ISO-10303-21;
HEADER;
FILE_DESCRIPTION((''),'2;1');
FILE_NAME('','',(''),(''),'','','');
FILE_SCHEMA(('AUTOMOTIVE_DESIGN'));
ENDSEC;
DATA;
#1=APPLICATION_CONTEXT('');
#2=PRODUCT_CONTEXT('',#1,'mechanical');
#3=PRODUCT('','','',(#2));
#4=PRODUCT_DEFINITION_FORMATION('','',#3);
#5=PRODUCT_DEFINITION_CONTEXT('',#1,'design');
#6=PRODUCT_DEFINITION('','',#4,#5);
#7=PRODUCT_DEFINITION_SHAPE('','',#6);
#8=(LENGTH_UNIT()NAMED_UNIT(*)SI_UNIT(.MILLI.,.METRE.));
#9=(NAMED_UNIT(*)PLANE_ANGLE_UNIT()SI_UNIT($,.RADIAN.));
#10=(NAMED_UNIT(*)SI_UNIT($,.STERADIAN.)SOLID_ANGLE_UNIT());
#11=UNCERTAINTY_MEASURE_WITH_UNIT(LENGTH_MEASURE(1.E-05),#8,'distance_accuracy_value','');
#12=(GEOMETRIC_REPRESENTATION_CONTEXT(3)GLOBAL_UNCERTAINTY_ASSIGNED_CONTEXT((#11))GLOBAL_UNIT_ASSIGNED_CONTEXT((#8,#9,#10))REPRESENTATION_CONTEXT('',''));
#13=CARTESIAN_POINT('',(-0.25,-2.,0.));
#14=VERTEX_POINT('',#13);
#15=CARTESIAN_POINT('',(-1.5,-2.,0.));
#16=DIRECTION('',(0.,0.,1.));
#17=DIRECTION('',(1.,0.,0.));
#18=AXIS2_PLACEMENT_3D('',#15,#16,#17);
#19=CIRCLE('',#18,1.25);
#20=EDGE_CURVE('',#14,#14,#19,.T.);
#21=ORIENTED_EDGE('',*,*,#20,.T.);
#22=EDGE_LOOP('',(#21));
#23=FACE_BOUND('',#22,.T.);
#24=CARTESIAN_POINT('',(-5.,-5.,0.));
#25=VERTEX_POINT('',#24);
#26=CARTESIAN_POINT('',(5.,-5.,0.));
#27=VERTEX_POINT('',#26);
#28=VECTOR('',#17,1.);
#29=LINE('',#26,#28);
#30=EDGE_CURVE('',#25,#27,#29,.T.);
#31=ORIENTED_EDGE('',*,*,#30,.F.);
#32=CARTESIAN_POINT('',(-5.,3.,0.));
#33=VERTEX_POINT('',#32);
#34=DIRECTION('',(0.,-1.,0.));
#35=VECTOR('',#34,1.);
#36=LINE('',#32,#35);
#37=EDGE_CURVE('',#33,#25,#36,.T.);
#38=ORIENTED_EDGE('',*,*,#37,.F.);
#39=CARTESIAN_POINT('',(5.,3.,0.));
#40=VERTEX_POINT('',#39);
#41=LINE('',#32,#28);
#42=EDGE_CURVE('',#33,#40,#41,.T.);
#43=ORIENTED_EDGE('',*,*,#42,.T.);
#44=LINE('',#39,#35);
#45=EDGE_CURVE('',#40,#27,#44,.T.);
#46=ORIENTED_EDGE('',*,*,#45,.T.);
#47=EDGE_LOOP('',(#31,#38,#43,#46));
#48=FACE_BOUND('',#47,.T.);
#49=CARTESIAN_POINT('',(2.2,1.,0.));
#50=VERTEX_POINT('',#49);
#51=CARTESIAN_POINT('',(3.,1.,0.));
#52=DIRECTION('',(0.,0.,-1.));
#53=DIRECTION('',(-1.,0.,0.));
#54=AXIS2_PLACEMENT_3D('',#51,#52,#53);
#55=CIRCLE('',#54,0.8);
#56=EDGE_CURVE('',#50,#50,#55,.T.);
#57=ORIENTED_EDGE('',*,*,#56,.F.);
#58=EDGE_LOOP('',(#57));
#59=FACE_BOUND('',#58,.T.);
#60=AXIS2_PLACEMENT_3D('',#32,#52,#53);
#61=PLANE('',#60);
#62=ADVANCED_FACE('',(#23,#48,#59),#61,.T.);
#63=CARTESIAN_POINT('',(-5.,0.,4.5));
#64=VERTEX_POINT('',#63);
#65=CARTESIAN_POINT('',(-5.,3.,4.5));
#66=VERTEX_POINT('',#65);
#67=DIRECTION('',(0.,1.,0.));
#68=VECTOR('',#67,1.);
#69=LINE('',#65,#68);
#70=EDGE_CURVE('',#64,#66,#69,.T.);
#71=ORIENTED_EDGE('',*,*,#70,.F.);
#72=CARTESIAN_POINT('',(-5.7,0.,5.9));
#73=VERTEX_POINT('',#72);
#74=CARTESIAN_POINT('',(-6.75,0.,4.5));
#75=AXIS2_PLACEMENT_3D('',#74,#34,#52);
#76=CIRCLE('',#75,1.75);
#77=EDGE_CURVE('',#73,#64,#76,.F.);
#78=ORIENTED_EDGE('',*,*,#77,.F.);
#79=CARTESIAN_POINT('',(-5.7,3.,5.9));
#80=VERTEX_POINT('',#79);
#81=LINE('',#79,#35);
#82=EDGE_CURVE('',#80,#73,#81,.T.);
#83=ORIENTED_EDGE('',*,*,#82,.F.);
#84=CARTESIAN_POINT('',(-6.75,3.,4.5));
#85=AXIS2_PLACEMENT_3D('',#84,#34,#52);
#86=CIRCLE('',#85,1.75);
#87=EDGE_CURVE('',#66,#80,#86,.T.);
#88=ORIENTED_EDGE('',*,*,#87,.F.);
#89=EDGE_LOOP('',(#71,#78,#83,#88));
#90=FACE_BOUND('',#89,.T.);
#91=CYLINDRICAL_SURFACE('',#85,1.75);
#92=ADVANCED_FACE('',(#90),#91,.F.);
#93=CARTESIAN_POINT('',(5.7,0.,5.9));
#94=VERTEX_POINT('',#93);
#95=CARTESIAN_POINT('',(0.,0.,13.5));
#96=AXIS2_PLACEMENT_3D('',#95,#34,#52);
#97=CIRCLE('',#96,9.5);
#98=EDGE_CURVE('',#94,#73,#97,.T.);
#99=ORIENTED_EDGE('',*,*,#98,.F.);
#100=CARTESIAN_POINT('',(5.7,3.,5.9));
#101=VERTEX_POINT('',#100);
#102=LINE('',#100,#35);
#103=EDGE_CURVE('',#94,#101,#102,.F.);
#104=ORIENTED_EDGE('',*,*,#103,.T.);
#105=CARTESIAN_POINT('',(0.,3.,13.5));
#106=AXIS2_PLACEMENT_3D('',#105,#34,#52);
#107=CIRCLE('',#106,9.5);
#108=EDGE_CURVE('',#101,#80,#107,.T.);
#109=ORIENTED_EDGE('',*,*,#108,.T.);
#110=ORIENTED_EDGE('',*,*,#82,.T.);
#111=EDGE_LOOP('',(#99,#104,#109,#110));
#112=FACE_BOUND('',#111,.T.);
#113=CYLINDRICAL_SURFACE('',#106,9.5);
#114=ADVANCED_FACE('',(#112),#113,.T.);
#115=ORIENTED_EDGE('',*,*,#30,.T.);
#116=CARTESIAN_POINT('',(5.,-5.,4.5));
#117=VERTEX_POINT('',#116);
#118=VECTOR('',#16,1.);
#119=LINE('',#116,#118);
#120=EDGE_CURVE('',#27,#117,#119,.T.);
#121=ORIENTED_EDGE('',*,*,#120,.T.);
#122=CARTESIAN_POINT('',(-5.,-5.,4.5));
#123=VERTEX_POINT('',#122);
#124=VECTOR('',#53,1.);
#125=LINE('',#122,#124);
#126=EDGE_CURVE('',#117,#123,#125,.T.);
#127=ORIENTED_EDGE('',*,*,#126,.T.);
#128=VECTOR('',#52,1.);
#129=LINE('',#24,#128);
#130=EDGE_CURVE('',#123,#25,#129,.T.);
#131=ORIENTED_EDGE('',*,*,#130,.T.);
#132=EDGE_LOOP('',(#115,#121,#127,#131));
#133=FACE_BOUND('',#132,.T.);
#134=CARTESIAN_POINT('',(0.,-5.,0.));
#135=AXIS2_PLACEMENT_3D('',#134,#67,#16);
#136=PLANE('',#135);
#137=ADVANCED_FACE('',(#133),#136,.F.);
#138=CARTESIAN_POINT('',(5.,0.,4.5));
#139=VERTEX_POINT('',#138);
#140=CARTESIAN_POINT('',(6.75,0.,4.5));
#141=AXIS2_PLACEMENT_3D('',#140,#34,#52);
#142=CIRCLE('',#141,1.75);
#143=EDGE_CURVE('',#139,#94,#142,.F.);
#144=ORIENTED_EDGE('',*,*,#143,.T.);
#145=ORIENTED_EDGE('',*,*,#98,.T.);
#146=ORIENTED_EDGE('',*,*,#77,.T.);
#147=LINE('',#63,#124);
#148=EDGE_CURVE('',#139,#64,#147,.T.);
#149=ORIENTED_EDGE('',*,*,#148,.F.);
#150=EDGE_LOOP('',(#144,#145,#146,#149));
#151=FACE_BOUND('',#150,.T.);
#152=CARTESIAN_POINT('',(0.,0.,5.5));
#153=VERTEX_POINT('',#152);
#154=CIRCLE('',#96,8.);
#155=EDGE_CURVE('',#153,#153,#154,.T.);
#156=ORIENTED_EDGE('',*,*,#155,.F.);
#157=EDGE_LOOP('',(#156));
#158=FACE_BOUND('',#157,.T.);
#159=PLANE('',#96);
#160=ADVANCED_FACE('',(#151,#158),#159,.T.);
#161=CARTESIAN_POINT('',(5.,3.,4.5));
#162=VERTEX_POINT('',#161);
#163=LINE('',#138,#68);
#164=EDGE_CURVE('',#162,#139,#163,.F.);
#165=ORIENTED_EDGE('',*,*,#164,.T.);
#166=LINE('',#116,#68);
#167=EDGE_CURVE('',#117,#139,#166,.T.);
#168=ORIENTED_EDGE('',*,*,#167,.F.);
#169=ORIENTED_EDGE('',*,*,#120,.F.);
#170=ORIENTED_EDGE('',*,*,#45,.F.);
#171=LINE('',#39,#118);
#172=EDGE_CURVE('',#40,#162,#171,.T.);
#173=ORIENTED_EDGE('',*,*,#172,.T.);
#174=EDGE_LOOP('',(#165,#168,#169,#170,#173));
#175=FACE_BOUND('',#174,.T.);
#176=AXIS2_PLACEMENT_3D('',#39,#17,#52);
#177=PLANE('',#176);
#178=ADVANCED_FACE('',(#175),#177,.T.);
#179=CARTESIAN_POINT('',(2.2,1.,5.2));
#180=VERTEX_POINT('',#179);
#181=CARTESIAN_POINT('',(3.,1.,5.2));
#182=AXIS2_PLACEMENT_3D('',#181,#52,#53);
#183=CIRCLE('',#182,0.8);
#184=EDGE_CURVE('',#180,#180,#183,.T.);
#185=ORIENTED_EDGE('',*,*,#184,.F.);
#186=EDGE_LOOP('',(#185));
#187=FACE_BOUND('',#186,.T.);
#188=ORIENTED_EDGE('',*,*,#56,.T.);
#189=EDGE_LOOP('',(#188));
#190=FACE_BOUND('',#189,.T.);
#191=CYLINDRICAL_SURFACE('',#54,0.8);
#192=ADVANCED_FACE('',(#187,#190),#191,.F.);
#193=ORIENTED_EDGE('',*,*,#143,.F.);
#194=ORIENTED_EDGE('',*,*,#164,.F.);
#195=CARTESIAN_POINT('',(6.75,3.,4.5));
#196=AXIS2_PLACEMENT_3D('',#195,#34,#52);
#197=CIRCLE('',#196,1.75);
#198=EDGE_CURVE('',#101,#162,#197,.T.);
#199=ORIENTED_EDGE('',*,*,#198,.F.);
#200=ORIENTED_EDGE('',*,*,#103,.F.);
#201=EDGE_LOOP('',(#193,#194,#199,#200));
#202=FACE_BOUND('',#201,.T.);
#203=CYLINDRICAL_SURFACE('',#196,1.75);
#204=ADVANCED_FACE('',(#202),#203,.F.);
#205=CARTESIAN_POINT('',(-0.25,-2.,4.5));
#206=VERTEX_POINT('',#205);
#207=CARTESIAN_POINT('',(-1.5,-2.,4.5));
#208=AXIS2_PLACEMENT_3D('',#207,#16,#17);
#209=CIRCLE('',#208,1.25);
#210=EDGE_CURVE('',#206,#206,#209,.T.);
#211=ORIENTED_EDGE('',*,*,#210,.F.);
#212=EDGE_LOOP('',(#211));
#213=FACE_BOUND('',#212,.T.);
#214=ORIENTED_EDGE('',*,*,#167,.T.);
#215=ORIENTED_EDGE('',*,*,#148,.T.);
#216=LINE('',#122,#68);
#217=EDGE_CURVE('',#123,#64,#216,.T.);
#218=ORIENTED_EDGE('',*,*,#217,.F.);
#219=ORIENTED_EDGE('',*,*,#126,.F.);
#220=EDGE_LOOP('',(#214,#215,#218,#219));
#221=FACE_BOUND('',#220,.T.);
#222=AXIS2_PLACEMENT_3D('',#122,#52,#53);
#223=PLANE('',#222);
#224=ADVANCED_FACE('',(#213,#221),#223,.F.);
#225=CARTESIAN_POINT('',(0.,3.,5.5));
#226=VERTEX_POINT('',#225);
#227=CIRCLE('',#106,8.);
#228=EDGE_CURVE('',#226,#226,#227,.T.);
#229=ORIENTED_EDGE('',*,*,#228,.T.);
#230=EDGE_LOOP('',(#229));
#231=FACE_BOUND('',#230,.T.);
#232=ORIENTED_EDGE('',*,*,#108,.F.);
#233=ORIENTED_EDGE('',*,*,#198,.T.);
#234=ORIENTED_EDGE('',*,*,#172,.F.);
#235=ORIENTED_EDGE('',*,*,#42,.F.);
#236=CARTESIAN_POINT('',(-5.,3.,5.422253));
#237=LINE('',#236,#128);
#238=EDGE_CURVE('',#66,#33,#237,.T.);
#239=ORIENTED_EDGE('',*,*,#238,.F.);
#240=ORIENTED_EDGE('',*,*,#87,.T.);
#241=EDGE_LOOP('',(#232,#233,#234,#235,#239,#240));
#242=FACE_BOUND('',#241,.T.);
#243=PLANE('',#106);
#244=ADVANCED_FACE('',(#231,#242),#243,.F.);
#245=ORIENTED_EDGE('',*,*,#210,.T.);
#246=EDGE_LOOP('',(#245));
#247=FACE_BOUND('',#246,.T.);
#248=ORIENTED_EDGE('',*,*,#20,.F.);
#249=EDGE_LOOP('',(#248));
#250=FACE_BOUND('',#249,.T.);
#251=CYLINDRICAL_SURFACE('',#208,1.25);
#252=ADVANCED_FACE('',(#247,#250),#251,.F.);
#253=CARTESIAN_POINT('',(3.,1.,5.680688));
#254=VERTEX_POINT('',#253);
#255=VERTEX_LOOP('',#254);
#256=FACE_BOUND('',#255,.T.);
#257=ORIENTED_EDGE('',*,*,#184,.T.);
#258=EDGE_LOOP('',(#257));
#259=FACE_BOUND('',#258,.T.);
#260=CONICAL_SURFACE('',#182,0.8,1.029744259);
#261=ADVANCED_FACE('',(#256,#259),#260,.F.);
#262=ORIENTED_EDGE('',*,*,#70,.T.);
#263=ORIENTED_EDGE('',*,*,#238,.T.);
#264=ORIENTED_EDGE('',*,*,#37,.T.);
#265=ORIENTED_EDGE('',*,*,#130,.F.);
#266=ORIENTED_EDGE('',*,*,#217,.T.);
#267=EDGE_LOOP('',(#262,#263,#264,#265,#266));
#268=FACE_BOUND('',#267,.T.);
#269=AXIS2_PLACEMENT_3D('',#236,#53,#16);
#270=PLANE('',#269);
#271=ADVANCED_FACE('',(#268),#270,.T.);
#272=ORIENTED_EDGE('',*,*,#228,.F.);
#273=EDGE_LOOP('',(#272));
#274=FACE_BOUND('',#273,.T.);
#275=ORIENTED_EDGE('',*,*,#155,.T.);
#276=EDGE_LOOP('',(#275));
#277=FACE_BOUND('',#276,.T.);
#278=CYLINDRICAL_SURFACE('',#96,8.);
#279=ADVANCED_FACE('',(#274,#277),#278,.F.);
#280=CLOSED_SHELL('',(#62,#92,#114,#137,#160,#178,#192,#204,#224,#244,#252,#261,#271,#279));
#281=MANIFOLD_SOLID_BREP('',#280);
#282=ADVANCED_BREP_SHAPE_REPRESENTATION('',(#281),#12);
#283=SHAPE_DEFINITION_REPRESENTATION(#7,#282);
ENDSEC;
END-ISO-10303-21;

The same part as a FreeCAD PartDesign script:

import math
import FreeCAD as App
import Part
import Sketcher

V = App.Vector


def edges_at(feature, points):
    """Names of the edges that pass closest to the given points."""
    edges = feature.Shape.Edges
    near = lambda p: min(range(len(edges)), key=lambda i: edges[i].distToShape(Part.Vertex(*p))[0])
    return sorted({f"Edge{near(p) + 1}" for p in points})

doc = App.newDocument("Part")
body = doc.addObject("PartDesign::Body", "Body")

sketch1 = body.newObject("Sketcher::SketchObject", "Sketch")
sketch1.AttachmentSupport = (doc.getObject("XZ_Plane"), [""])
sketch1.MapMode = "FlatFace"
sketch1.addGeometry(Part.LineSegment(V(-5, 5, 0), V(-5, 0, 0)), False)
sketch1.addGeometry(Part.LineSegment(V(-5, 0, 0), V(5, 0, 0)), False)
sketch1.addGeometry(Part.LineSegment(V(5, 0, 0), V(5, 5, 0)), False)
sketch1.addGeometry(Part.ArcOfCircle(Part.Circle(V(0, 14, 0), V(0, 0, 1), 10), math.radians(-58), math.radians(238)), False)
sketch1.addConstraint(Sketcher.Constraint("Coincident", 0, 2, 1, 1))
sketch1.addConstraint(Sketcher.Constraint("Coincident", 1, 2, 2, 1))
sketch1.addConstraint(Sketcher.Constraint("Coincident", 2, 2, 3, 1))
sketch1.addConstraint(Sketcher.Constraint("Coincident", 3, 2, 0, 1))
sketch1.addConstraint(Sketcher.Constraint("Vertical", 0))
sketch1.addConstraint(Sketcher.Constraint("Horizontal", 1))
sketch1.addConstraint(Sketcher.Constraint("Vertical", 2))
sketch1.addConstraint(Sketcher.Constraint("Symmetric", 0, 2, 1, 2, -1, 1))
sketch1.addConstraint(Sketcher.Constraint("PointOnObject", 3, 3, -2))
sketch1.addConstraint(Sketcher.Constraint("Radius", 3, 9.5))
sketch1.addConstraint(Sketcher.Constraint("DistanceX", 1, 1, 1, 2, 10.0))
sketch1.addConstraint(Sketcher.Constraint("DistanceY", -1, 1, 3, 3, 13.5))
pad1 = body.newObject("PartDesign::Pad", "Pad")
pad1.Profile = sketch1
pad1.Length = 3
pad1.Reversed = True

sketch2 = body.newObject("Sketcher::SketchObject", "Sketch001")
sketch2.AttachmentSupport = (doc.getObject("XZ_Plane"), [""])
sketch2.MapMode = "FlatFace"
sketch2.addGeometry(Part.LineSegment(V(-5, 4.5, 0), V(-5, 0, 0)), False)
sketch2.addGeometry(Part.LineSegment(V(-5, 0, 0), V(5, 0, 0)), False)
sketch2.addGeometry(Part.LineSegment(V(5, 0, 0), V(5, 4.5, 0)), False)
sketch2.addGeometry(Part.LineSegment(V(5, 4.5, 0), V(-5, 4.5, 0)), False)
sketch2.addConstraint(Sketcher.Constraint("Coincident", 0, 2, 1, 1))
sketch2.addConstraint(Sketcher.Constraint("Coincident", 1, 2, 2, 1))
sketch2.addConstraint(Sketcher.Constraint("Coincident", 2, 2, 3, 1))
sketch2.addConstraint(Sketcher.Constraint("Coincident", 3, 2, 0, 1))
sketch2.addConstraint(Sketcher.Constraint("Vertical", 0))
sketch2.addConstraint(Sketcher.Constraint("Horizontal", 1))
sketch2.addConstraint(Sketcher.Constraint("Vertical", 2))
sketch2.addConstraint(Sketcher.Constraint("Horizontal", 3))
sketch2.addConstraint(Sketcher.Constraint("Symmetric", 0, 2, 1, 2, -1, 1))
sketch2.addConstraint(Sketcher.Constraint("DistanceX", 1, 1, 1, 2, 10.0))
sketch2.addConstraint(Sketcher.Constraint("DistanceY", 0, 2, 0, 1, 4.5))
pad2 = body.newObject("PartDesign::Pad", "Pad001")
pad2.Profile = sketch2
pad2.Length = 5

sketch3 = body.newObject("Sketcher::SketchObject", "Sketch002")
sketch3.AttachmentSupport = (doc.getObject("XY_Plane"), [""])
sketch3.MapMode = "FlatFace"
sketch3.addGeometry(Part.Circle(V(3, 1, 0), V(0, 0, 1), 0.8), False)
sketch3.addConstraint(Sketcher.Constraint("Diameter", 0, 1.6))
sketch3.addConstraint(Sketcher.Constraint("DistanceX", -1, 1, 0, 3, 3.0))
sketch3.addConstraint(Sketcher.Constraint("DistanceY", -1, 1, 0, 3, 1.0))
doc.recompute()
hole = body.newObject("PartDesign::Hole", "Hole")
hole.Profile = sketch3
hole.ThreadType = "None"
hole.Diameter = 1.6
hole.DepthType = "Dimension"
hole.Depth = 5.2
hole.DrillPoint = "Angled"
hole.DrillPointAngle = 118
hole.Reversed = True

sketch4 = body.newObject("Sketcher::SketchObject", "Sketch003")
sketch4.AttachmentSupport = (doc.getObject("XY_Plane"), [""])
sketch4.MapMode = "FlatFace"
sketch4.AttachmentOffset = App.Placement(V(0, 0, 4.5), App.Rotation())
sketch4.addGeometry(Part.Circle(V(-1.5, -2, 0), V(0, 0, 1), 1.2), False)
sketch4.addConstraint(Sketcher.Constraint("Diameter", 0, 2.5))
sketch4.addConstraint(Sketcher.Constraint("DistanceY", 0, 3, -1, 1, 2.0))
sketch4.addConstraint(Sketcher.Constraint("DistanceX", 0, 3, -1, 1, 1.5))
doc.recompute()
hole2 = body.newObject("PartDesign::Hole", "Hole001")
hole2.Profile = sketch4
hole2.ThreadType = "None"
hole2.Diameter = 2.5
hole2.DepthType = "ThroughAll"

sketch5 = body.newObject("Sketcher::SketchObject", "Sketch004")
sketch5.AttachmentSupport = (doc.getObject("XZ_Plane"), [""])
sketch5.MapMode = "FlatFace"
sketch5.addGeometry(Part.Circle(V(0, 14, 0), V(0, 0, 1), 8), False)
sketch5.addConstraint(Sketcher.Constraint("PointOnObject", 0, 3, -2))
sketch5.addConstraint(Sketcher.Constraint("Diameter", 0, 16.0))
sketch5.addConstraint(Sketcher.Constraint("DistanceY", -1, 1, 0, 3, 13.5))
doc.recompute()
hole3 = body.newObject("PartDesign::Hole", "Hole002")
hole3.Profile = sketch5
hole3.ThreadType = "None"
hole3.Diameter = 16
hole3.DepthType = "ThroughAll"
doc.recompute()

fillet = body.newObject("PartDesign::Fillet", "Fillet")
fillet.Base = (hole3, edges_at(hole3, [(-5, 1.5, 5.422), (5, 1.5, 5.422)]))
fillet.Radius = 1.75

doc.recompute()
